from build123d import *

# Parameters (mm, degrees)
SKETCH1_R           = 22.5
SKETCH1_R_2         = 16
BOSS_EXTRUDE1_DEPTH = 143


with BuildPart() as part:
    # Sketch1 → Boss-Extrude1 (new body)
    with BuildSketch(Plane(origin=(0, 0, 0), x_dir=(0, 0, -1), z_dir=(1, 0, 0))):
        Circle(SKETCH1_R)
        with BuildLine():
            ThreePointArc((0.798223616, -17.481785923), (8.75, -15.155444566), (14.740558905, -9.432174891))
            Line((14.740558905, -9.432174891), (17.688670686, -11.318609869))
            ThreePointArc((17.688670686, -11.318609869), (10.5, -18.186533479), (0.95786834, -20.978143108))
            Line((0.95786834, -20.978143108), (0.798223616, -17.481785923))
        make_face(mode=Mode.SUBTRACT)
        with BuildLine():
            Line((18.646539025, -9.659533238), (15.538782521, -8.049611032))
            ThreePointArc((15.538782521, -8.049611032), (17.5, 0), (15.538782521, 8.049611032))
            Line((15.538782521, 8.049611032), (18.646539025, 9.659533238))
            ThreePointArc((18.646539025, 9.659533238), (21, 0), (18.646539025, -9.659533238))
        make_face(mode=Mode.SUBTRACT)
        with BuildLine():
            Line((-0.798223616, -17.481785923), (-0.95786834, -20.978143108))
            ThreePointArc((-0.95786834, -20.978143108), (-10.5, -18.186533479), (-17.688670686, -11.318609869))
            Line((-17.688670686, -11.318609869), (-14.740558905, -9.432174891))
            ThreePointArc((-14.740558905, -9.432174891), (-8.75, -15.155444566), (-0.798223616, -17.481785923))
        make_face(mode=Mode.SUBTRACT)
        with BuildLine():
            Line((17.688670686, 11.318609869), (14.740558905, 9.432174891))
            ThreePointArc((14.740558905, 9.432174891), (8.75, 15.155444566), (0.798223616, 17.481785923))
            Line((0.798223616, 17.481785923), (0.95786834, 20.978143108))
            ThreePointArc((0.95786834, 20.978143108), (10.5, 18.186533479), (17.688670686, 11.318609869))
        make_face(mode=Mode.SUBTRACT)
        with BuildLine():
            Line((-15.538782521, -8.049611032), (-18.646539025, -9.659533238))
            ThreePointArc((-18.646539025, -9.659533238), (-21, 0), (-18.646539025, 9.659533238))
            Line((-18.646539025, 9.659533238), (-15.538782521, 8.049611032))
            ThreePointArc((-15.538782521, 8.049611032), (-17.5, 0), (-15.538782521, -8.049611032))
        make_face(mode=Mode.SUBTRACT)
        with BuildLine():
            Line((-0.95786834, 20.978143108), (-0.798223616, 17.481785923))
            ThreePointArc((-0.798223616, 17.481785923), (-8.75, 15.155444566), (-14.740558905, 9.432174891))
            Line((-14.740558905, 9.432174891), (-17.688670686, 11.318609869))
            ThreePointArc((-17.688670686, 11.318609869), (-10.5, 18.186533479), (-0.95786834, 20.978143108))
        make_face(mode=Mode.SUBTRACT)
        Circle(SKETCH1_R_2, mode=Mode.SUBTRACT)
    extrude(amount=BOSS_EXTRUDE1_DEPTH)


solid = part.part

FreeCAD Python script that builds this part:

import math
import FreeCAD as App
import Part
import Sketcher

V = App.Vector

doc = App.newDocument("Part")
body = doc.addObject("PartDesign::Body", "Body")

# Sketch on YZ plane
sketch1 = body.newObject("Sketcher::SketchObject", "Sketch")
sketch1.AttachmentSupport = (doc.getObject("YZ_Plane"), [""])
sketch1.MapMode = "FlatFace"
sketch1.addGeometry(Part.Circle(V(0, 0, 0), V(0, 0, 1), 22.5), False)
sketch1.addGeometry(Part.ArcOfCircle(Part.Circle(V(0, 0, 0), V(0, 0, 1), 17.5), math.radians(123), math.radians(177)), False)
sketch1.addGeometry(Part.LineSegment(V(-17.5, 0.8, 0), V(-21, 1, 0)), False)
sketch1.addGeometry(Part.ArcOfCircle(Part.Circle(V(0, 0, 0), V(0, 0, 1), 21), math.radians(123), math.radians(177)), False)
sketch1.addGeometry(Part.LineSegment(V(-11.3, 17.7, 0), V(-9.4, 14.7, 0)), False)
sketch1.addGeometry(Part.LineSegment(V(-21, -1, 0), V(-17.5, -0.8, 0)), False)
sketch1.addGeometry(Part.ArcOfCircle(Part.Circle(V(0, 0, 0), V(0, 0, 1), 17.5), math.radians(-177), math.radians(-123)), False)
sketch1.addGeometry(Part.LineSegment(V(-9.4, -14.7, 0), V(-11.3, -17.7, 0)), False)
sketch1.addGeometry(Part.ArcOfCircle(Part.Circle(V(0, 0, 0), V(0, 0, 1), 21), math.radians(-177), math.radians(-123)), False)
sketch1.addGeometry(Part.ArcOfCircle(Part.Circle(V(0, 0, 0), V(0, 0, 1), 17.5), math.radians(63), math.radians(117)), False)
sketch1.addGeometry(Part.LineSegment(V(-8, 15.5, 0), V(-9.7, 18.6, 0)), False)
sketch1.addGeometry(Part.ArcOfCircle(Part.Circle(V(0, 0, 0), V(0, 0, 1), 21), math.radians(63), math.radians(117)), False)
sketch1.addGeometry(Part.LineSegment(V(9.7, 18.6, 0), V(8, 15.5, 0)), False)
sketch1.addGeometry(Part.ArcOfCircle(Part.Circle(V(0, 0, 0), V(0, 0, 1), 21), math.radians(3), math.radians(57)), False)
sketch1.addGeometry(Part.LineSegment(V(21, 1, 0), V(17.5, 0.8, 0)), False)
sketch1.addGeometry(Part.ArcOfCircle(Part.Circle(V(0, 0, 0), V(0, 0, 1), 17.5), math.radians(3), math.radians(57)), False)
sketch1.addGeometry(Part.LineSegment(V(9.4, 14.7, 0), V(11.3, 17.7, 0)), False)
sketch1.addGeometry(Part.Circle(V(0, 0, 0), V(0, 0, 1), 16), False)
sketch1.addGeometry(Part.ArcOfCircle(Part.Circle(V(0, 0, 0), V(0, 0, 1), 21), math.radians(-117), math.radians(-63)), False)
sketch1.addGeometry(Part.LineSegment(V(-9.7, -18.6, 0), V(-8, -15.5, 0)), False)
sketch1.addGeometry(Part.ArcOfCircle(Part.Circle(V(0, 0, 0), V(0, 0, 1), 17.5), math.radians(-117), math.radians(-63)), False)
sketch1.addGeometry(Part.LineSegment(V(8, -15.5, 0), V(9.7, -18.6, 0)), False)
sketch1.addGeometry(Part.ArcOfCircle(Part.Circle(V(0, 0, 0), V(0, 0, 1), 21), math.radians(-57), math.radians(-3)), False)
sketch1.addGeometry(Part.LineSegment(V(11.3, -17.7, 0), V(9.4, -14.7, 0)), False)
sketch1.addGeometry(Part.ArcOfCircle(Part.Circle(V(0, 0, 0), V(0, 0, 1), 17.5), math.radians(-57), math.radians(-3)), False)
sketch1.addGeometry(Part.LineSegment(V(17.5, -0.8, 0), V(21, -1, 0)), False)
sketch1.addConstraint(Sketcher.Constraint("Coincident", 1, 2, 2, 1))
sketch1.addConstraint(Sketcher.Constraint("Coincident", 2, 2, 3, 2))
sketch1.addConstraint(Sketcher.Constraint("Coincident", 3, 1, 4, 1))
sketch1.addConstraint(Sketcher.Constraint("Coincident", 4, 2, 1, 1))
sketch1.addConstraint(Sketcher.Constraint("Coincident", 5, 2, 6, 1))
sketch1.addConstraint(Sketcher.Constraint("Coincident", 6, 2, 7, 1))
sketch1.addConstraint(Sketcher.Constraint("Coincident", 7, 2, 8, 2))
sketch1.addConstraint(Sketcher.Constraint("Coincident", 8, 1, 5, 1))
sketch1.addConstraint(Sketcher.Constraint("Coincident", 9, 2, 10, 1))
sketch1.addConstraint(Sketcher.Constraint("Coincident", 10, 2, 11, 2))
sketch1.addConstraint(Sketcher.Constraint("Coincident", 11, 1, 12, 1))
sketch1.addConstraint(Sketcher.Constraint("Coincident", 12, 2, 9, 1))
sketch1.addConstraint(Sketcher.Constraint("Coincident", 13, 1, 14, 1))
sketch1.addConstraint(Sketcher.Constraint("Coincident", 14, 2, 15, 1))
sketch1.addConstraint(Sketcher.Constraint("Coincident", 15, 2, 16, 1))
sketch1.addConstraint(Sketcher.Constraint("Coincident", 16, 2, 13, 2))
sketch1.addConstraint(Sketcher.Constraint("Coincident", 18, 1, 19, 1))
sketch1.addConstraint(Sketcher.Constraint("Coincident", 19, 2, 20, 1))
sketch1.addConstraint(Sketcher.Constraint("Coincident", 20, 2, 21, 1))
sketch1.addConstraint(Sketcher.Constraint("Coincident", 21, 2, 18, 2))
sketch1.addConstraint(Sketcher.Constraint("Coincident", 22, 1, 23, 1))
sketch1.addConstraint(Sketcher.Constraint("Coincident", 23, 2, 24, 1))
sketch1.addConstraint(Sketcher.Constraint("Coincident", 24, 2, 25, 1))
sketch1.addConstraint(Sketcher.Constraint("Coincident", 25, 2, 22, 2))
sketch1.addConstraint(Sketcher.Constraint("Coincident", 0, 3, -1, 1))
sketch1.addConstraint(Sketcher.Constraint("Coincident", 1, 3, -1, 1))
sketch1.addConstraint(Sketcher.Constraint("Coincident", 3, 3, -1, 1))
sketch1.addConstraint(Sketcher.Constraint("Coincident", 6, 3, -1, 1))
sketch1.addConstraint(Sketcher.Constraint("Coincident", 8, 3, -1, 1))
sketch1.addConstraint(Sketcher.Constraint("Coincident", 9, 3, -1, 1))
sketch1.addConstraint(Sketcher.Constraint("Coincident", 11, 3, -1, 1))
sketch1.addConstraint(Sketcher.Constraint("Coincident", 13, 3, -1, 1))
sketch1.addConstraint(Sketcher.Constraint("Coincident", 15, 3, -1, 1))
sketch1.addConstraint(Sketcher.Constraint("Coincident", 17, 3, -1, 1))
sketch1.addConstraint(Sketcher.Constraint("Coincident", 18, 3, -1, 1))
sketch1.addConstraint(Sketcher.Constraint("Coincident", 20, 3, -1, 1))
sketch1.addConstraint(Sketcher.Constraint("Coincident", 22, 3, -1, 1))
sketch1.addConstraint(Sketcher.Constraint("Coincident", 24, 3, -1, 1))
sketch1.addConstraint(Sketcher.Constraint("Equal", 1, 6))
sketch1.addConstraint(Sketcher.Constraint("Equal", 3, 8))
sketch1.addConstraint(Sketcher.Constraint("Equal", 6, 9))
sketch1.addConstraint(Sketcher.Constraint("Equal", 8, 11))
sketch1.addConstraint(Sketcher.Constraint("Equal", 11, 13))
sketch1.addConstraint(Sketcher.Constraint("Equal", 9, 15))
sketch1.addConstraint(Sketcher.Constraint("Equal", 13, 18))
sketch1.addConstraint(Sketcher.Constraint("Equal", 15, 20))
sketch1.addConstraint(Sketcher.Constraint("Equal", 18, 22))
sketch1.addConstraint(Sketcher.Constraint("Equal", 20, 24))
sketch1.addConstraint(Sketcher.Constraint("Parallel", 5, 14))
sketch1.addConstraint(Sketcher.Constraint("Parallel", 7, 16))
sketch1.addConstraint(Sketcher.Constraint("Parallel", 12, 19))
sketch1.addConstraint(Sketcher.Constraint("Parallel", 10, 21))
sketch1.addConstraint(Sketcher.Constraint("Parallel", 4, 23))
sketch1.addConstraint(Sketcher.Constraint("Parallel", 2, 25))
sketch1.addConstraint(Sketcher.Constraint("Horizontal", 10, 2, 11, 1))
sketch1.addConstraint(Sketcher.Constraint("Horizontal", 9, 2, 12, 2))
sketch1.addConstraint(Sketcher.Constraint("Horizontal", 2, 2, 13, 1))
sketch1.addConstraint(Sketcher.Constraint("Horizontal", 1, 2, 14, 2))
sketch1.addConstraint(Sketcher.Constraint("Horizontal", 4, 2, 15, 2))
sketch1.addConstraint(Sketcher.Constraint("Horizontal", 3, 1, 16, 2))
sketch1.addConstraint(Sketcher.Constraint("Horizontal", 19, 2, 20, 2))
sketch1.addConstraint(Sketcher.Constraint("Horizontal", 7, 2, 22, 1))
sketch1.addConstraint(Sketcher.Constraint("Horizontal", 5, 2, 24, 2))
sketch1.addConstraint(Sketcher.Constraint("Vertical", 1, 2, 5, 2))
sketch1.addConstraint(Sketcher.Constraint("Vertical", 4, 2, 6, 2))
sketch1.addConstraint(Sketcher.Constraint("Vertical", 10, 2, 18, 1))
sketch1.addConstraint(Sketcher.Constraint("Diameter", 0, 45.0))
sketch1.addConstraint(Sketcher.Constraint("Diameter", 17, 32.0))
sketch1.addConstraint(Sketcher.Constraint("Radius", 3, 21.0))
sketch1.addConstraint(Sketcher.Constraint("Radius", 1, 17.5))
sketch1.addConstraint(Sketcher.Constraint("DistanceX", 3, 1, 9, 2, 3.268999))
sketch1.addConstraint(Sketcher.Constraint("DistanceY", -1, 1, 2, 2, 0.957868))
sketch1.addConstraint(Sketcher.Constraint("DistanceX", 3, 1, -1, 1, 11.31861))
sketch1.addConstraint(Sketcher.Constraint("DistanceY", -1, 1, 4, 2, 14.740559))
sketch1.addConstraint(Sketcher.Constraint("DistanceY", -1, 1, 10, 2, 18.646539))
sketch1.addConstraint(Sketcher.Constraint("DistanceX", 1, 2, 4, 2, 8.049611))
pad1 = body.newObject("PartDesign::Pad", "Pad")
pad1.Profile = sketch1
pad1.Length = 143

doc.recompute()
